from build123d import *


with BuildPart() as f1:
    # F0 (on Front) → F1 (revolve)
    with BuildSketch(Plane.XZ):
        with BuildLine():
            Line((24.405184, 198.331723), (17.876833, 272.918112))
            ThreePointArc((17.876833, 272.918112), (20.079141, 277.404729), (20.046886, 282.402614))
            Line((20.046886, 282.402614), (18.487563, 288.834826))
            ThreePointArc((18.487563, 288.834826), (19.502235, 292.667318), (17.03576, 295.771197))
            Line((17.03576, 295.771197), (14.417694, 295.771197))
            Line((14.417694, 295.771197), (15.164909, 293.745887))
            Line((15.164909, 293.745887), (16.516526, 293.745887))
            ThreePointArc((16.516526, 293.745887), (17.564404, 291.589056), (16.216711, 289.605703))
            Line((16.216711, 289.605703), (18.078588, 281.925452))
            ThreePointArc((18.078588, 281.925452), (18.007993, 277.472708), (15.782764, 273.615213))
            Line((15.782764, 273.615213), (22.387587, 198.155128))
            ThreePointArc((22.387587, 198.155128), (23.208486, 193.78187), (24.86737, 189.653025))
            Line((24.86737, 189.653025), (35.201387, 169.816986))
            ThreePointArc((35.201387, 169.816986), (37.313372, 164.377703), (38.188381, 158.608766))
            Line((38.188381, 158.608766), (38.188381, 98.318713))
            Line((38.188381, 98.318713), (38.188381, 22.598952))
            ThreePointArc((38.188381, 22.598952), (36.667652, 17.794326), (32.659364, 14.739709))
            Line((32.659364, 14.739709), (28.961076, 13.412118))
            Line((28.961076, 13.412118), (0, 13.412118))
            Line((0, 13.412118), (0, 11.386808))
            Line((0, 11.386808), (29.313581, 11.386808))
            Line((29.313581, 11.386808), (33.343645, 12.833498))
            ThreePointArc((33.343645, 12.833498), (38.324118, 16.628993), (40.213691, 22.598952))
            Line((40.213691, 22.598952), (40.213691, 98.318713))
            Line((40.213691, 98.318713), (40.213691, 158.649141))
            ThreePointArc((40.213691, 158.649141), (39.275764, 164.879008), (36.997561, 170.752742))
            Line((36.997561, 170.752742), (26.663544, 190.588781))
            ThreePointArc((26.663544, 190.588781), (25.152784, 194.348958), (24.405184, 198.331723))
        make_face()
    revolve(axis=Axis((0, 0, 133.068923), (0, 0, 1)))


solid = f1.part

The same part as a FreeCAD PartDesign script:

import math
import FreeCAD as App
import Part
import Sketcher
from FreeCAD import Vector

doc = App.newDocument("Part")
body = doc.addObject("PartDesign::Body", "Body")

sketch1 = body.newObject("Sketcher::SketchObject", "Sketch")
sketch1.AttachmentSupport = (doc.getObject("XZ_Plane"), [""])
sketch1.MapMode = "FlatFace"
sketch1.addGeometry(Part.LineSegment(Vector(24.405184, 198.331723, 0), Vector(17.876833, 272.918112, 0)), False)
sketch1.addGeometry(Part.ArcOfCircle(Part.Circle(Vector(9.456365, 279.835219, 0), Vector(0, 0, 1), 10.897277), math.radians(-39.401856), math.radians(13.626974)), False)
sketch1.addGeometry(Part.LineSegment(Vector(20.046886, 282.402614, 0), Vector(18.487563, 288.834826, 0)), False)
sketch1.addGeometry(Part.ArcOfCircle(Part.Circle(Vector(15.176676, 291.761966, 0), Vector(0, 0, 1), 4.41929), math.radians(-41.479751), math.radians(65.122797)), False)
sketch1.addGeometry(Part.LineSegment(Vector(17.03576, 295.771197, 0), Vector(14.417694, 295.771197, 0)), False)
sketch1.addGeometry(Part.LineSegment(Vector(14.417694, 295.771197, 0), Vector(15.164909, 293.745887, 0)), False)
sketch1.addGeometry(Part.LineSegment(Vector(15.164909, 293.745887, 0), Vector(16.516526, 293.745887, 0)), False)
sketch1.addGeometry(Part.ArcOfCircle(Part.Circle(Vector(15.176676, 291.761966, 0), Vector(0, 0, 1), 2.39398), math.radians(-64.250498), math.radians(55.966711)), False)
sketch1.addGeometry(Part.LineSegment(Vector(16.216711, 289.605703, 0), Vector(18.078588, 281.925452, 0)), False)
sketch1.addGeometry(Part.ArcOfCircle(Part.Circle(Vector(9.456364, 279.835219, 0), Vector(0, 0, 1), 8.871968), math.radians(-44.514145), math.radians(13.626973)), False)
sketch1.addGeometry(Part.LineSegment(Vector(15.782764, 273.615213, 0), Vector(22.387587, 198.155128, 0)), False)
sketch1.addGeometry(Part.ArcOfCircle(Part.Circle(Vector(44.983328, 200.132873, 0), Vector(0, 0, 1), 22.682129), math.radians(-174.9978), math.radians(-152.481754)), False)
sketch1.addGeometry(Part.LineSegment(Vector(24.86737, 189.653025, 0), Vector(35.201387, 169.816986, 0)), False)
sketch1.addGeometry(Part.ArcOfCircle(Part.Circle(Vector(11.614749, 157.529013, 0), Vector(0, 0, 1), 26.595559), math.radians(2.326791), math.radians(27.518244)), False)
sketch1.addGeometry(Part.LineSegment(Vector(38.188381, 158.608766, 0), Vector(38.188381, 22.598952, 0)), False)
sketch1.addGeometry(Part.ArcOfCircle(Part.Circle(Vector(29.838099, 22.59895, 0), Vector(0, 0, 1), 8.350282), math.radians(-70.253169), math.radians(0.000011)), False)
sketch1.addGeometry(Part.LineSegment(Vector(32.659364, 14.739709, 0), Vector(28.961076, 13.412118, 0)), False)
sketch1.addGeometry(Part.LineSegment(Vector(28.961076, 13.412118, 0), Vector(0, 13.412118, 0)), False)
sketch1.addGeometry(Part.LineSegment(Vector(0, 13.412118, 0), Vector(0, 11.386808, 0)), False)
sketch1.addGeometry(Part.LineSegment(Vector(0, 11.386808, 0), Vector(29.313581, 11.386808, 0)), False)
sketch1.addGeometry(Part.LineSegment(Vector(29.313581, 11.386808, 0), Vector(33.343645, 12.833498, 0)), False)
sketch1.addGeometry(Part.ArcOfCircle(Part.Circle(Vector(29.838099, 22.59895, 0), Vector(0, 0, 1), 10.375592), math.radians(-70.253167), math.radians(0.000008)), False)
sketch1.addGeometry(Part.LineSegment(Vector(40.213691, 22.598952, 0), Vector(40.213691, 158.649141, 0)), False)
sketch1.addGeometry(Part.ArcOfCircle(Part.Circle(Vector(11.61476, 157.529015, 0), Vector(0, 0, 1), 28.620859), math.radians(2.24294), math.radians(27.518249)), False)
sketch1.addGeometry(Part.LineSegment(Vector(36.997561, 170.752742, 0), Vector(26.663544, 190.588781, 0)), False)
sketch1.addGeometry(Part.ArcOfCircle(Part.Circle(Vector(44.983349, 200.132877, 0), Vector(0, 0, 1), 20.65684), math.radians(-174.997794), math.radians(-152.48177)), False)
sketch1.addConstraint(Sketcher.Constraint("Coincident", 0, 2, 1, 1))
sketch1.addConstraint(Sketcher.Constraint("Coincident", 1, 2, 2, 1))
sketch1.addConstraint(Sketcher.Constraint("Coincident", 2, 2, 3, 1))
sketch1.addConstraint(Sketcher.Constraint("Coincident", 3, 2, 4, 1))
sketch1.addConstraint(Sketcher.Constraint("Coincident", 4, 2, 5, 1))
sketch1.addConstraint(Sketcher.Constraint("Coincident", 5, 2, 6, 1))
sketch1.addConstraint(Sketcher.Constraint("Coincident", 6, 2, 7, 2))
sketch1.addConstraint(Sketcher.Constraint("Coincident", 7, 1, 8, 1))
sketch1.addConstraint(Sketcher.Constraint("Coincident", 8, 2, 9, 2))
sketch1.addConstraint(Sketcher.Constraint("Coincident", 9, 1, 10, 1))
sketch1.addConstraint(Sketcher.Constraint("Coincident", 10, 2, 11, 1))
sketch1.addConstraint(Sketcher.Constraint("Coincident", 11, 2, 12, 1))
sketch1.addConstraint(Sketcher.Constraint("Coincident", 12, 2, 13, 2))
sketch1.addConstraint(Sketcher.Constraint("Coincident", 13, 1, 14, 1))
sketch1.addConstraint(Sketcher.Constraint("Coincident", 14, 2, 15, 2))
sketch1.addConstraint(Sketcher.Constraint("Coincident", 15, 1, 16, 1))
sketch1.addConstraint(Sketcher.Constraint("Coincident", 16, 2, 17, 1))
sketch1.addConstraint(Sketcher.Constraint("Coincident", 17, 2, 18, 1))
sketch1.addConstraint(Sketcher.Constraint("Coincident", 18, 2, 19, 1))
sketch1.addConstraint(Sketcher.Constraint("Coincident", 19, 2, 20, 1))
sketch1.addConstraint(Sketcher.Constraint("Coincident", 20, 2, 21, 1))
sketch1.addConstraint(Sketcher.Constraint("Coincident", 21, 2, 22, 1))
sketch1.addConstraint(Sketcher.Constraint("Coincident", 22, 2, 23, 1))
sketch1.addConstraint(Sketcher.Constraint("Coincident", 23, 2, 24, 1))
sketch1.addConstraint(Sketcher.Constraint("Coincident", 24, 2, 25, 2))
sketch1.addConstraint(Sketcher.Constraint("Coincident", 25, 1, 0, 1))
sketch1.addConstraint(Sketcher.Constraint("Horizontal", 4))
sketch1.addConstraint(Sketcher.Constraint("Horizontal", 6))
sketch1.addConstraint(Sketcher.Constraint("Vertical", 14))
sketch1.addConstraint(Sketcher.Constraint("Horizontal", 17))
sketch1.addConstraint(Sketcher.Constraint("Vertical", 18))
sketch1.addConstraint(Sketcher.Constraint("Horizontal", 19))
sketch1.addConstraint(Sketcher.Constraint("Vertical", 22))
sketch1.addConstraint(Sketcher.Constraint("Coincident", 7, 3, 3, 3))
sketch1.addConstraint(Sketcher.Constraint("Coincident", 9, 3, 1, 3))
sketch1.addConstraint(Sketcher.Constraint("Coincident", 21, 3, 15, 3))
sketch1.addConstraint(Sketcher.Constraint("PointOnObject", 17, 2, -2))
sketch1.addConstraint(Sketcher.Constraint("Radius", 3, 4.41929))
sketch1.addConstraint(Sketcher.Constraint("Radius", 7, 2.39398))
sketch1.addConstraint(Sketcher.Constraint("Radius", 11, 22.682129))
sketch1.addConstraint(Sketcher.Constraint("Radius", 13, 26.595559))
sketch1.addConstraint(Sketcher.Constraint("Radius", 23, 28.620859))
sketch1.addConstraint(Sketcher.Constraint("Radius", 25, 20.65684))
sketch1.addConstraint(Sketcher.Constraint("Radius", 1, 10.897277))
sketch1.addConstraint(Sketcher.Constraint("Radius", 9, 8.871968))
sketch1.addConstraint(Sketcher.Constraint("Radius", 15, 8.350282))
sketch1.addConstraint(Sketcher.Constraint("Radius", 21, 10.375592))
sketch1.addConstraint(Sketcher.Constraint("Distance", 12, 22.366501))
sketch1.addConstraint(Sketcher.Constraint("Distance", 24, 22.366501))
sketch1.addConstraint(Sketcher.Constraint("DistanceX", 19, 1, 19, 2, 29.313581))
sketch1.addConstraint(Sketcher.Constraint("DistanceY", 18, 2, 18, 1, 2.02531))
sketch1.addConstraint(Sketcher.Constraint("DistanceY", 22, 1, 22, 2, 136.050189))
sketch1.addConstraint(Sketcher.Constraint("DistanceX", -1, 1, 15, 3, 29.838099))
sketch1.addConstraint(Sketcher.Constraint("DistanceX", 13, 3, 25, 3, 33.368599))
sketch1.addConstraint(Sketcher.Constraint("DistanceX", 9, 3, 2, 2, 9.031199))
sketch1.addConstraint(Sketcher.Constraint("DistanceX", 5, 2, 7, 1, 1.051802))
sketch1.addConstraint(Sketcher.Constraint("DistanceX", 8, 2, 1, 2, 1.968298))
sketch1.addConstraint(Sketcher.Constraint("DistanceY", 0, 2, 9, 1, 0.697101))
sketch1.addConstraint(Sketcher.Constraint("DistanceX", 1, 3, 9, 1, 6.326399))
sketch1.addConstraint(Sketcher.Constraint("DistanceY", 9, 1, 1, 2, 8.787401))
sketch1.addConstraint(Sketcher.Constraint("DistanceX", 10, 2, 12, 2, 12.8138))
sketch1.addConstraint(Sketcher.Constraint("DistanceY", 18, 2, 15, 1, 3.352901))
sketch1.addConstraint(Sketcher.Constraint("DistanceY", 22, 2, 23, 2, 12.103601))
sketch1.addConstraint(Sketcher.Constraint("DistanceX", 23, 3, 23, 2, 25.382801))
sketch1.addConstraint(Sketcher.Constraint("DistanceY", 11, 2, 25, 1, 8.678698))
sketch1.addConstraint(Sketcher.Constraint("Distance", 0, 74.871549))
sketch1.addConstraint(Sketcher.Constraint("Distance", 8, 7.902711))
sketch1.addConstraint(Sketcher.Constraint("Distance", 20, 4.28186))
sketch1.addConstraint(Sketcher.Constraint("DistanceX", 4, 2, 4, 1, 2.618066))
sketch1.addConstraint(Sketcher.Constraint("DistanceX", 6, 1, 6, 2, 1.351617))
sketch1.addConstraint(Sketcher.Constraint("DistanceX", 17, 2, 17, 1, 28.961076))
sketch1.addConstraint(Sketcher.Constraint("DistanceY", 14, 2, 14, 1, 136.009814))
sketch1.addConstraint(Sketcher.Constraint("DistanceY", -1, 1, 1, 3, 279.835219))
sketch1.addConstraint(Sketcher.Constraint("DistanceX", -1, 1, 11, 3, 44.983328))
sketch1.addConstraint(Sketcher.Constraint("DistanceX", -1, 1, 13, 3, 11.614749))
sketch1.addConstraint(Sketcher.Constraint("DistanceY", -1, 1, 15, 3, 22.59895))
sketch1.addConstraint(Sketcher.Constraint("DistanceX", -1, 1, 3, 2, 17.03576))
sketch1.addConstraint(Sketcher.Constraint("DistanceX", -1, 1, 5, 2, 15.164909))
sketch1.addConstraint(Sketcher.Constraint("DistanceX", -1, 1, 8, 2, 18.078588))
sketch1.addConstraint(Sketcher.Constraint("DistanceX", -1, 1, 11, 2, 24.86737))
sketch1.addConstraint(Sketcher.Constraint("DistanceY", -1, 1, 15, 1, 14.739709))
sketch1.addConstraint(Sketcher.Constraint("DistanceY", -1, 1, 22, 2, 158.649141))
sketch1.addConstraint(Sketcher.Constraint("DistanceY", -1, 1, 24, 2, 190.588781))
sketch1.addConstraint(Sketcher.Constraint("DistanceX", 1, 3, 3, 3, 5.720311))
sketch1.addConstraint(Sketcher.Constraint("DistanceY", 13, 3, 11, 3, 42.603861))
revolution = body.newObject("PartDesign::Revolution", "Revolution")
revolution.Profile = sketch1
revolution.ReferenceAxis = (sketch1, ["V_Axis"])
revolution.Angle = 360

doc.recompute()
